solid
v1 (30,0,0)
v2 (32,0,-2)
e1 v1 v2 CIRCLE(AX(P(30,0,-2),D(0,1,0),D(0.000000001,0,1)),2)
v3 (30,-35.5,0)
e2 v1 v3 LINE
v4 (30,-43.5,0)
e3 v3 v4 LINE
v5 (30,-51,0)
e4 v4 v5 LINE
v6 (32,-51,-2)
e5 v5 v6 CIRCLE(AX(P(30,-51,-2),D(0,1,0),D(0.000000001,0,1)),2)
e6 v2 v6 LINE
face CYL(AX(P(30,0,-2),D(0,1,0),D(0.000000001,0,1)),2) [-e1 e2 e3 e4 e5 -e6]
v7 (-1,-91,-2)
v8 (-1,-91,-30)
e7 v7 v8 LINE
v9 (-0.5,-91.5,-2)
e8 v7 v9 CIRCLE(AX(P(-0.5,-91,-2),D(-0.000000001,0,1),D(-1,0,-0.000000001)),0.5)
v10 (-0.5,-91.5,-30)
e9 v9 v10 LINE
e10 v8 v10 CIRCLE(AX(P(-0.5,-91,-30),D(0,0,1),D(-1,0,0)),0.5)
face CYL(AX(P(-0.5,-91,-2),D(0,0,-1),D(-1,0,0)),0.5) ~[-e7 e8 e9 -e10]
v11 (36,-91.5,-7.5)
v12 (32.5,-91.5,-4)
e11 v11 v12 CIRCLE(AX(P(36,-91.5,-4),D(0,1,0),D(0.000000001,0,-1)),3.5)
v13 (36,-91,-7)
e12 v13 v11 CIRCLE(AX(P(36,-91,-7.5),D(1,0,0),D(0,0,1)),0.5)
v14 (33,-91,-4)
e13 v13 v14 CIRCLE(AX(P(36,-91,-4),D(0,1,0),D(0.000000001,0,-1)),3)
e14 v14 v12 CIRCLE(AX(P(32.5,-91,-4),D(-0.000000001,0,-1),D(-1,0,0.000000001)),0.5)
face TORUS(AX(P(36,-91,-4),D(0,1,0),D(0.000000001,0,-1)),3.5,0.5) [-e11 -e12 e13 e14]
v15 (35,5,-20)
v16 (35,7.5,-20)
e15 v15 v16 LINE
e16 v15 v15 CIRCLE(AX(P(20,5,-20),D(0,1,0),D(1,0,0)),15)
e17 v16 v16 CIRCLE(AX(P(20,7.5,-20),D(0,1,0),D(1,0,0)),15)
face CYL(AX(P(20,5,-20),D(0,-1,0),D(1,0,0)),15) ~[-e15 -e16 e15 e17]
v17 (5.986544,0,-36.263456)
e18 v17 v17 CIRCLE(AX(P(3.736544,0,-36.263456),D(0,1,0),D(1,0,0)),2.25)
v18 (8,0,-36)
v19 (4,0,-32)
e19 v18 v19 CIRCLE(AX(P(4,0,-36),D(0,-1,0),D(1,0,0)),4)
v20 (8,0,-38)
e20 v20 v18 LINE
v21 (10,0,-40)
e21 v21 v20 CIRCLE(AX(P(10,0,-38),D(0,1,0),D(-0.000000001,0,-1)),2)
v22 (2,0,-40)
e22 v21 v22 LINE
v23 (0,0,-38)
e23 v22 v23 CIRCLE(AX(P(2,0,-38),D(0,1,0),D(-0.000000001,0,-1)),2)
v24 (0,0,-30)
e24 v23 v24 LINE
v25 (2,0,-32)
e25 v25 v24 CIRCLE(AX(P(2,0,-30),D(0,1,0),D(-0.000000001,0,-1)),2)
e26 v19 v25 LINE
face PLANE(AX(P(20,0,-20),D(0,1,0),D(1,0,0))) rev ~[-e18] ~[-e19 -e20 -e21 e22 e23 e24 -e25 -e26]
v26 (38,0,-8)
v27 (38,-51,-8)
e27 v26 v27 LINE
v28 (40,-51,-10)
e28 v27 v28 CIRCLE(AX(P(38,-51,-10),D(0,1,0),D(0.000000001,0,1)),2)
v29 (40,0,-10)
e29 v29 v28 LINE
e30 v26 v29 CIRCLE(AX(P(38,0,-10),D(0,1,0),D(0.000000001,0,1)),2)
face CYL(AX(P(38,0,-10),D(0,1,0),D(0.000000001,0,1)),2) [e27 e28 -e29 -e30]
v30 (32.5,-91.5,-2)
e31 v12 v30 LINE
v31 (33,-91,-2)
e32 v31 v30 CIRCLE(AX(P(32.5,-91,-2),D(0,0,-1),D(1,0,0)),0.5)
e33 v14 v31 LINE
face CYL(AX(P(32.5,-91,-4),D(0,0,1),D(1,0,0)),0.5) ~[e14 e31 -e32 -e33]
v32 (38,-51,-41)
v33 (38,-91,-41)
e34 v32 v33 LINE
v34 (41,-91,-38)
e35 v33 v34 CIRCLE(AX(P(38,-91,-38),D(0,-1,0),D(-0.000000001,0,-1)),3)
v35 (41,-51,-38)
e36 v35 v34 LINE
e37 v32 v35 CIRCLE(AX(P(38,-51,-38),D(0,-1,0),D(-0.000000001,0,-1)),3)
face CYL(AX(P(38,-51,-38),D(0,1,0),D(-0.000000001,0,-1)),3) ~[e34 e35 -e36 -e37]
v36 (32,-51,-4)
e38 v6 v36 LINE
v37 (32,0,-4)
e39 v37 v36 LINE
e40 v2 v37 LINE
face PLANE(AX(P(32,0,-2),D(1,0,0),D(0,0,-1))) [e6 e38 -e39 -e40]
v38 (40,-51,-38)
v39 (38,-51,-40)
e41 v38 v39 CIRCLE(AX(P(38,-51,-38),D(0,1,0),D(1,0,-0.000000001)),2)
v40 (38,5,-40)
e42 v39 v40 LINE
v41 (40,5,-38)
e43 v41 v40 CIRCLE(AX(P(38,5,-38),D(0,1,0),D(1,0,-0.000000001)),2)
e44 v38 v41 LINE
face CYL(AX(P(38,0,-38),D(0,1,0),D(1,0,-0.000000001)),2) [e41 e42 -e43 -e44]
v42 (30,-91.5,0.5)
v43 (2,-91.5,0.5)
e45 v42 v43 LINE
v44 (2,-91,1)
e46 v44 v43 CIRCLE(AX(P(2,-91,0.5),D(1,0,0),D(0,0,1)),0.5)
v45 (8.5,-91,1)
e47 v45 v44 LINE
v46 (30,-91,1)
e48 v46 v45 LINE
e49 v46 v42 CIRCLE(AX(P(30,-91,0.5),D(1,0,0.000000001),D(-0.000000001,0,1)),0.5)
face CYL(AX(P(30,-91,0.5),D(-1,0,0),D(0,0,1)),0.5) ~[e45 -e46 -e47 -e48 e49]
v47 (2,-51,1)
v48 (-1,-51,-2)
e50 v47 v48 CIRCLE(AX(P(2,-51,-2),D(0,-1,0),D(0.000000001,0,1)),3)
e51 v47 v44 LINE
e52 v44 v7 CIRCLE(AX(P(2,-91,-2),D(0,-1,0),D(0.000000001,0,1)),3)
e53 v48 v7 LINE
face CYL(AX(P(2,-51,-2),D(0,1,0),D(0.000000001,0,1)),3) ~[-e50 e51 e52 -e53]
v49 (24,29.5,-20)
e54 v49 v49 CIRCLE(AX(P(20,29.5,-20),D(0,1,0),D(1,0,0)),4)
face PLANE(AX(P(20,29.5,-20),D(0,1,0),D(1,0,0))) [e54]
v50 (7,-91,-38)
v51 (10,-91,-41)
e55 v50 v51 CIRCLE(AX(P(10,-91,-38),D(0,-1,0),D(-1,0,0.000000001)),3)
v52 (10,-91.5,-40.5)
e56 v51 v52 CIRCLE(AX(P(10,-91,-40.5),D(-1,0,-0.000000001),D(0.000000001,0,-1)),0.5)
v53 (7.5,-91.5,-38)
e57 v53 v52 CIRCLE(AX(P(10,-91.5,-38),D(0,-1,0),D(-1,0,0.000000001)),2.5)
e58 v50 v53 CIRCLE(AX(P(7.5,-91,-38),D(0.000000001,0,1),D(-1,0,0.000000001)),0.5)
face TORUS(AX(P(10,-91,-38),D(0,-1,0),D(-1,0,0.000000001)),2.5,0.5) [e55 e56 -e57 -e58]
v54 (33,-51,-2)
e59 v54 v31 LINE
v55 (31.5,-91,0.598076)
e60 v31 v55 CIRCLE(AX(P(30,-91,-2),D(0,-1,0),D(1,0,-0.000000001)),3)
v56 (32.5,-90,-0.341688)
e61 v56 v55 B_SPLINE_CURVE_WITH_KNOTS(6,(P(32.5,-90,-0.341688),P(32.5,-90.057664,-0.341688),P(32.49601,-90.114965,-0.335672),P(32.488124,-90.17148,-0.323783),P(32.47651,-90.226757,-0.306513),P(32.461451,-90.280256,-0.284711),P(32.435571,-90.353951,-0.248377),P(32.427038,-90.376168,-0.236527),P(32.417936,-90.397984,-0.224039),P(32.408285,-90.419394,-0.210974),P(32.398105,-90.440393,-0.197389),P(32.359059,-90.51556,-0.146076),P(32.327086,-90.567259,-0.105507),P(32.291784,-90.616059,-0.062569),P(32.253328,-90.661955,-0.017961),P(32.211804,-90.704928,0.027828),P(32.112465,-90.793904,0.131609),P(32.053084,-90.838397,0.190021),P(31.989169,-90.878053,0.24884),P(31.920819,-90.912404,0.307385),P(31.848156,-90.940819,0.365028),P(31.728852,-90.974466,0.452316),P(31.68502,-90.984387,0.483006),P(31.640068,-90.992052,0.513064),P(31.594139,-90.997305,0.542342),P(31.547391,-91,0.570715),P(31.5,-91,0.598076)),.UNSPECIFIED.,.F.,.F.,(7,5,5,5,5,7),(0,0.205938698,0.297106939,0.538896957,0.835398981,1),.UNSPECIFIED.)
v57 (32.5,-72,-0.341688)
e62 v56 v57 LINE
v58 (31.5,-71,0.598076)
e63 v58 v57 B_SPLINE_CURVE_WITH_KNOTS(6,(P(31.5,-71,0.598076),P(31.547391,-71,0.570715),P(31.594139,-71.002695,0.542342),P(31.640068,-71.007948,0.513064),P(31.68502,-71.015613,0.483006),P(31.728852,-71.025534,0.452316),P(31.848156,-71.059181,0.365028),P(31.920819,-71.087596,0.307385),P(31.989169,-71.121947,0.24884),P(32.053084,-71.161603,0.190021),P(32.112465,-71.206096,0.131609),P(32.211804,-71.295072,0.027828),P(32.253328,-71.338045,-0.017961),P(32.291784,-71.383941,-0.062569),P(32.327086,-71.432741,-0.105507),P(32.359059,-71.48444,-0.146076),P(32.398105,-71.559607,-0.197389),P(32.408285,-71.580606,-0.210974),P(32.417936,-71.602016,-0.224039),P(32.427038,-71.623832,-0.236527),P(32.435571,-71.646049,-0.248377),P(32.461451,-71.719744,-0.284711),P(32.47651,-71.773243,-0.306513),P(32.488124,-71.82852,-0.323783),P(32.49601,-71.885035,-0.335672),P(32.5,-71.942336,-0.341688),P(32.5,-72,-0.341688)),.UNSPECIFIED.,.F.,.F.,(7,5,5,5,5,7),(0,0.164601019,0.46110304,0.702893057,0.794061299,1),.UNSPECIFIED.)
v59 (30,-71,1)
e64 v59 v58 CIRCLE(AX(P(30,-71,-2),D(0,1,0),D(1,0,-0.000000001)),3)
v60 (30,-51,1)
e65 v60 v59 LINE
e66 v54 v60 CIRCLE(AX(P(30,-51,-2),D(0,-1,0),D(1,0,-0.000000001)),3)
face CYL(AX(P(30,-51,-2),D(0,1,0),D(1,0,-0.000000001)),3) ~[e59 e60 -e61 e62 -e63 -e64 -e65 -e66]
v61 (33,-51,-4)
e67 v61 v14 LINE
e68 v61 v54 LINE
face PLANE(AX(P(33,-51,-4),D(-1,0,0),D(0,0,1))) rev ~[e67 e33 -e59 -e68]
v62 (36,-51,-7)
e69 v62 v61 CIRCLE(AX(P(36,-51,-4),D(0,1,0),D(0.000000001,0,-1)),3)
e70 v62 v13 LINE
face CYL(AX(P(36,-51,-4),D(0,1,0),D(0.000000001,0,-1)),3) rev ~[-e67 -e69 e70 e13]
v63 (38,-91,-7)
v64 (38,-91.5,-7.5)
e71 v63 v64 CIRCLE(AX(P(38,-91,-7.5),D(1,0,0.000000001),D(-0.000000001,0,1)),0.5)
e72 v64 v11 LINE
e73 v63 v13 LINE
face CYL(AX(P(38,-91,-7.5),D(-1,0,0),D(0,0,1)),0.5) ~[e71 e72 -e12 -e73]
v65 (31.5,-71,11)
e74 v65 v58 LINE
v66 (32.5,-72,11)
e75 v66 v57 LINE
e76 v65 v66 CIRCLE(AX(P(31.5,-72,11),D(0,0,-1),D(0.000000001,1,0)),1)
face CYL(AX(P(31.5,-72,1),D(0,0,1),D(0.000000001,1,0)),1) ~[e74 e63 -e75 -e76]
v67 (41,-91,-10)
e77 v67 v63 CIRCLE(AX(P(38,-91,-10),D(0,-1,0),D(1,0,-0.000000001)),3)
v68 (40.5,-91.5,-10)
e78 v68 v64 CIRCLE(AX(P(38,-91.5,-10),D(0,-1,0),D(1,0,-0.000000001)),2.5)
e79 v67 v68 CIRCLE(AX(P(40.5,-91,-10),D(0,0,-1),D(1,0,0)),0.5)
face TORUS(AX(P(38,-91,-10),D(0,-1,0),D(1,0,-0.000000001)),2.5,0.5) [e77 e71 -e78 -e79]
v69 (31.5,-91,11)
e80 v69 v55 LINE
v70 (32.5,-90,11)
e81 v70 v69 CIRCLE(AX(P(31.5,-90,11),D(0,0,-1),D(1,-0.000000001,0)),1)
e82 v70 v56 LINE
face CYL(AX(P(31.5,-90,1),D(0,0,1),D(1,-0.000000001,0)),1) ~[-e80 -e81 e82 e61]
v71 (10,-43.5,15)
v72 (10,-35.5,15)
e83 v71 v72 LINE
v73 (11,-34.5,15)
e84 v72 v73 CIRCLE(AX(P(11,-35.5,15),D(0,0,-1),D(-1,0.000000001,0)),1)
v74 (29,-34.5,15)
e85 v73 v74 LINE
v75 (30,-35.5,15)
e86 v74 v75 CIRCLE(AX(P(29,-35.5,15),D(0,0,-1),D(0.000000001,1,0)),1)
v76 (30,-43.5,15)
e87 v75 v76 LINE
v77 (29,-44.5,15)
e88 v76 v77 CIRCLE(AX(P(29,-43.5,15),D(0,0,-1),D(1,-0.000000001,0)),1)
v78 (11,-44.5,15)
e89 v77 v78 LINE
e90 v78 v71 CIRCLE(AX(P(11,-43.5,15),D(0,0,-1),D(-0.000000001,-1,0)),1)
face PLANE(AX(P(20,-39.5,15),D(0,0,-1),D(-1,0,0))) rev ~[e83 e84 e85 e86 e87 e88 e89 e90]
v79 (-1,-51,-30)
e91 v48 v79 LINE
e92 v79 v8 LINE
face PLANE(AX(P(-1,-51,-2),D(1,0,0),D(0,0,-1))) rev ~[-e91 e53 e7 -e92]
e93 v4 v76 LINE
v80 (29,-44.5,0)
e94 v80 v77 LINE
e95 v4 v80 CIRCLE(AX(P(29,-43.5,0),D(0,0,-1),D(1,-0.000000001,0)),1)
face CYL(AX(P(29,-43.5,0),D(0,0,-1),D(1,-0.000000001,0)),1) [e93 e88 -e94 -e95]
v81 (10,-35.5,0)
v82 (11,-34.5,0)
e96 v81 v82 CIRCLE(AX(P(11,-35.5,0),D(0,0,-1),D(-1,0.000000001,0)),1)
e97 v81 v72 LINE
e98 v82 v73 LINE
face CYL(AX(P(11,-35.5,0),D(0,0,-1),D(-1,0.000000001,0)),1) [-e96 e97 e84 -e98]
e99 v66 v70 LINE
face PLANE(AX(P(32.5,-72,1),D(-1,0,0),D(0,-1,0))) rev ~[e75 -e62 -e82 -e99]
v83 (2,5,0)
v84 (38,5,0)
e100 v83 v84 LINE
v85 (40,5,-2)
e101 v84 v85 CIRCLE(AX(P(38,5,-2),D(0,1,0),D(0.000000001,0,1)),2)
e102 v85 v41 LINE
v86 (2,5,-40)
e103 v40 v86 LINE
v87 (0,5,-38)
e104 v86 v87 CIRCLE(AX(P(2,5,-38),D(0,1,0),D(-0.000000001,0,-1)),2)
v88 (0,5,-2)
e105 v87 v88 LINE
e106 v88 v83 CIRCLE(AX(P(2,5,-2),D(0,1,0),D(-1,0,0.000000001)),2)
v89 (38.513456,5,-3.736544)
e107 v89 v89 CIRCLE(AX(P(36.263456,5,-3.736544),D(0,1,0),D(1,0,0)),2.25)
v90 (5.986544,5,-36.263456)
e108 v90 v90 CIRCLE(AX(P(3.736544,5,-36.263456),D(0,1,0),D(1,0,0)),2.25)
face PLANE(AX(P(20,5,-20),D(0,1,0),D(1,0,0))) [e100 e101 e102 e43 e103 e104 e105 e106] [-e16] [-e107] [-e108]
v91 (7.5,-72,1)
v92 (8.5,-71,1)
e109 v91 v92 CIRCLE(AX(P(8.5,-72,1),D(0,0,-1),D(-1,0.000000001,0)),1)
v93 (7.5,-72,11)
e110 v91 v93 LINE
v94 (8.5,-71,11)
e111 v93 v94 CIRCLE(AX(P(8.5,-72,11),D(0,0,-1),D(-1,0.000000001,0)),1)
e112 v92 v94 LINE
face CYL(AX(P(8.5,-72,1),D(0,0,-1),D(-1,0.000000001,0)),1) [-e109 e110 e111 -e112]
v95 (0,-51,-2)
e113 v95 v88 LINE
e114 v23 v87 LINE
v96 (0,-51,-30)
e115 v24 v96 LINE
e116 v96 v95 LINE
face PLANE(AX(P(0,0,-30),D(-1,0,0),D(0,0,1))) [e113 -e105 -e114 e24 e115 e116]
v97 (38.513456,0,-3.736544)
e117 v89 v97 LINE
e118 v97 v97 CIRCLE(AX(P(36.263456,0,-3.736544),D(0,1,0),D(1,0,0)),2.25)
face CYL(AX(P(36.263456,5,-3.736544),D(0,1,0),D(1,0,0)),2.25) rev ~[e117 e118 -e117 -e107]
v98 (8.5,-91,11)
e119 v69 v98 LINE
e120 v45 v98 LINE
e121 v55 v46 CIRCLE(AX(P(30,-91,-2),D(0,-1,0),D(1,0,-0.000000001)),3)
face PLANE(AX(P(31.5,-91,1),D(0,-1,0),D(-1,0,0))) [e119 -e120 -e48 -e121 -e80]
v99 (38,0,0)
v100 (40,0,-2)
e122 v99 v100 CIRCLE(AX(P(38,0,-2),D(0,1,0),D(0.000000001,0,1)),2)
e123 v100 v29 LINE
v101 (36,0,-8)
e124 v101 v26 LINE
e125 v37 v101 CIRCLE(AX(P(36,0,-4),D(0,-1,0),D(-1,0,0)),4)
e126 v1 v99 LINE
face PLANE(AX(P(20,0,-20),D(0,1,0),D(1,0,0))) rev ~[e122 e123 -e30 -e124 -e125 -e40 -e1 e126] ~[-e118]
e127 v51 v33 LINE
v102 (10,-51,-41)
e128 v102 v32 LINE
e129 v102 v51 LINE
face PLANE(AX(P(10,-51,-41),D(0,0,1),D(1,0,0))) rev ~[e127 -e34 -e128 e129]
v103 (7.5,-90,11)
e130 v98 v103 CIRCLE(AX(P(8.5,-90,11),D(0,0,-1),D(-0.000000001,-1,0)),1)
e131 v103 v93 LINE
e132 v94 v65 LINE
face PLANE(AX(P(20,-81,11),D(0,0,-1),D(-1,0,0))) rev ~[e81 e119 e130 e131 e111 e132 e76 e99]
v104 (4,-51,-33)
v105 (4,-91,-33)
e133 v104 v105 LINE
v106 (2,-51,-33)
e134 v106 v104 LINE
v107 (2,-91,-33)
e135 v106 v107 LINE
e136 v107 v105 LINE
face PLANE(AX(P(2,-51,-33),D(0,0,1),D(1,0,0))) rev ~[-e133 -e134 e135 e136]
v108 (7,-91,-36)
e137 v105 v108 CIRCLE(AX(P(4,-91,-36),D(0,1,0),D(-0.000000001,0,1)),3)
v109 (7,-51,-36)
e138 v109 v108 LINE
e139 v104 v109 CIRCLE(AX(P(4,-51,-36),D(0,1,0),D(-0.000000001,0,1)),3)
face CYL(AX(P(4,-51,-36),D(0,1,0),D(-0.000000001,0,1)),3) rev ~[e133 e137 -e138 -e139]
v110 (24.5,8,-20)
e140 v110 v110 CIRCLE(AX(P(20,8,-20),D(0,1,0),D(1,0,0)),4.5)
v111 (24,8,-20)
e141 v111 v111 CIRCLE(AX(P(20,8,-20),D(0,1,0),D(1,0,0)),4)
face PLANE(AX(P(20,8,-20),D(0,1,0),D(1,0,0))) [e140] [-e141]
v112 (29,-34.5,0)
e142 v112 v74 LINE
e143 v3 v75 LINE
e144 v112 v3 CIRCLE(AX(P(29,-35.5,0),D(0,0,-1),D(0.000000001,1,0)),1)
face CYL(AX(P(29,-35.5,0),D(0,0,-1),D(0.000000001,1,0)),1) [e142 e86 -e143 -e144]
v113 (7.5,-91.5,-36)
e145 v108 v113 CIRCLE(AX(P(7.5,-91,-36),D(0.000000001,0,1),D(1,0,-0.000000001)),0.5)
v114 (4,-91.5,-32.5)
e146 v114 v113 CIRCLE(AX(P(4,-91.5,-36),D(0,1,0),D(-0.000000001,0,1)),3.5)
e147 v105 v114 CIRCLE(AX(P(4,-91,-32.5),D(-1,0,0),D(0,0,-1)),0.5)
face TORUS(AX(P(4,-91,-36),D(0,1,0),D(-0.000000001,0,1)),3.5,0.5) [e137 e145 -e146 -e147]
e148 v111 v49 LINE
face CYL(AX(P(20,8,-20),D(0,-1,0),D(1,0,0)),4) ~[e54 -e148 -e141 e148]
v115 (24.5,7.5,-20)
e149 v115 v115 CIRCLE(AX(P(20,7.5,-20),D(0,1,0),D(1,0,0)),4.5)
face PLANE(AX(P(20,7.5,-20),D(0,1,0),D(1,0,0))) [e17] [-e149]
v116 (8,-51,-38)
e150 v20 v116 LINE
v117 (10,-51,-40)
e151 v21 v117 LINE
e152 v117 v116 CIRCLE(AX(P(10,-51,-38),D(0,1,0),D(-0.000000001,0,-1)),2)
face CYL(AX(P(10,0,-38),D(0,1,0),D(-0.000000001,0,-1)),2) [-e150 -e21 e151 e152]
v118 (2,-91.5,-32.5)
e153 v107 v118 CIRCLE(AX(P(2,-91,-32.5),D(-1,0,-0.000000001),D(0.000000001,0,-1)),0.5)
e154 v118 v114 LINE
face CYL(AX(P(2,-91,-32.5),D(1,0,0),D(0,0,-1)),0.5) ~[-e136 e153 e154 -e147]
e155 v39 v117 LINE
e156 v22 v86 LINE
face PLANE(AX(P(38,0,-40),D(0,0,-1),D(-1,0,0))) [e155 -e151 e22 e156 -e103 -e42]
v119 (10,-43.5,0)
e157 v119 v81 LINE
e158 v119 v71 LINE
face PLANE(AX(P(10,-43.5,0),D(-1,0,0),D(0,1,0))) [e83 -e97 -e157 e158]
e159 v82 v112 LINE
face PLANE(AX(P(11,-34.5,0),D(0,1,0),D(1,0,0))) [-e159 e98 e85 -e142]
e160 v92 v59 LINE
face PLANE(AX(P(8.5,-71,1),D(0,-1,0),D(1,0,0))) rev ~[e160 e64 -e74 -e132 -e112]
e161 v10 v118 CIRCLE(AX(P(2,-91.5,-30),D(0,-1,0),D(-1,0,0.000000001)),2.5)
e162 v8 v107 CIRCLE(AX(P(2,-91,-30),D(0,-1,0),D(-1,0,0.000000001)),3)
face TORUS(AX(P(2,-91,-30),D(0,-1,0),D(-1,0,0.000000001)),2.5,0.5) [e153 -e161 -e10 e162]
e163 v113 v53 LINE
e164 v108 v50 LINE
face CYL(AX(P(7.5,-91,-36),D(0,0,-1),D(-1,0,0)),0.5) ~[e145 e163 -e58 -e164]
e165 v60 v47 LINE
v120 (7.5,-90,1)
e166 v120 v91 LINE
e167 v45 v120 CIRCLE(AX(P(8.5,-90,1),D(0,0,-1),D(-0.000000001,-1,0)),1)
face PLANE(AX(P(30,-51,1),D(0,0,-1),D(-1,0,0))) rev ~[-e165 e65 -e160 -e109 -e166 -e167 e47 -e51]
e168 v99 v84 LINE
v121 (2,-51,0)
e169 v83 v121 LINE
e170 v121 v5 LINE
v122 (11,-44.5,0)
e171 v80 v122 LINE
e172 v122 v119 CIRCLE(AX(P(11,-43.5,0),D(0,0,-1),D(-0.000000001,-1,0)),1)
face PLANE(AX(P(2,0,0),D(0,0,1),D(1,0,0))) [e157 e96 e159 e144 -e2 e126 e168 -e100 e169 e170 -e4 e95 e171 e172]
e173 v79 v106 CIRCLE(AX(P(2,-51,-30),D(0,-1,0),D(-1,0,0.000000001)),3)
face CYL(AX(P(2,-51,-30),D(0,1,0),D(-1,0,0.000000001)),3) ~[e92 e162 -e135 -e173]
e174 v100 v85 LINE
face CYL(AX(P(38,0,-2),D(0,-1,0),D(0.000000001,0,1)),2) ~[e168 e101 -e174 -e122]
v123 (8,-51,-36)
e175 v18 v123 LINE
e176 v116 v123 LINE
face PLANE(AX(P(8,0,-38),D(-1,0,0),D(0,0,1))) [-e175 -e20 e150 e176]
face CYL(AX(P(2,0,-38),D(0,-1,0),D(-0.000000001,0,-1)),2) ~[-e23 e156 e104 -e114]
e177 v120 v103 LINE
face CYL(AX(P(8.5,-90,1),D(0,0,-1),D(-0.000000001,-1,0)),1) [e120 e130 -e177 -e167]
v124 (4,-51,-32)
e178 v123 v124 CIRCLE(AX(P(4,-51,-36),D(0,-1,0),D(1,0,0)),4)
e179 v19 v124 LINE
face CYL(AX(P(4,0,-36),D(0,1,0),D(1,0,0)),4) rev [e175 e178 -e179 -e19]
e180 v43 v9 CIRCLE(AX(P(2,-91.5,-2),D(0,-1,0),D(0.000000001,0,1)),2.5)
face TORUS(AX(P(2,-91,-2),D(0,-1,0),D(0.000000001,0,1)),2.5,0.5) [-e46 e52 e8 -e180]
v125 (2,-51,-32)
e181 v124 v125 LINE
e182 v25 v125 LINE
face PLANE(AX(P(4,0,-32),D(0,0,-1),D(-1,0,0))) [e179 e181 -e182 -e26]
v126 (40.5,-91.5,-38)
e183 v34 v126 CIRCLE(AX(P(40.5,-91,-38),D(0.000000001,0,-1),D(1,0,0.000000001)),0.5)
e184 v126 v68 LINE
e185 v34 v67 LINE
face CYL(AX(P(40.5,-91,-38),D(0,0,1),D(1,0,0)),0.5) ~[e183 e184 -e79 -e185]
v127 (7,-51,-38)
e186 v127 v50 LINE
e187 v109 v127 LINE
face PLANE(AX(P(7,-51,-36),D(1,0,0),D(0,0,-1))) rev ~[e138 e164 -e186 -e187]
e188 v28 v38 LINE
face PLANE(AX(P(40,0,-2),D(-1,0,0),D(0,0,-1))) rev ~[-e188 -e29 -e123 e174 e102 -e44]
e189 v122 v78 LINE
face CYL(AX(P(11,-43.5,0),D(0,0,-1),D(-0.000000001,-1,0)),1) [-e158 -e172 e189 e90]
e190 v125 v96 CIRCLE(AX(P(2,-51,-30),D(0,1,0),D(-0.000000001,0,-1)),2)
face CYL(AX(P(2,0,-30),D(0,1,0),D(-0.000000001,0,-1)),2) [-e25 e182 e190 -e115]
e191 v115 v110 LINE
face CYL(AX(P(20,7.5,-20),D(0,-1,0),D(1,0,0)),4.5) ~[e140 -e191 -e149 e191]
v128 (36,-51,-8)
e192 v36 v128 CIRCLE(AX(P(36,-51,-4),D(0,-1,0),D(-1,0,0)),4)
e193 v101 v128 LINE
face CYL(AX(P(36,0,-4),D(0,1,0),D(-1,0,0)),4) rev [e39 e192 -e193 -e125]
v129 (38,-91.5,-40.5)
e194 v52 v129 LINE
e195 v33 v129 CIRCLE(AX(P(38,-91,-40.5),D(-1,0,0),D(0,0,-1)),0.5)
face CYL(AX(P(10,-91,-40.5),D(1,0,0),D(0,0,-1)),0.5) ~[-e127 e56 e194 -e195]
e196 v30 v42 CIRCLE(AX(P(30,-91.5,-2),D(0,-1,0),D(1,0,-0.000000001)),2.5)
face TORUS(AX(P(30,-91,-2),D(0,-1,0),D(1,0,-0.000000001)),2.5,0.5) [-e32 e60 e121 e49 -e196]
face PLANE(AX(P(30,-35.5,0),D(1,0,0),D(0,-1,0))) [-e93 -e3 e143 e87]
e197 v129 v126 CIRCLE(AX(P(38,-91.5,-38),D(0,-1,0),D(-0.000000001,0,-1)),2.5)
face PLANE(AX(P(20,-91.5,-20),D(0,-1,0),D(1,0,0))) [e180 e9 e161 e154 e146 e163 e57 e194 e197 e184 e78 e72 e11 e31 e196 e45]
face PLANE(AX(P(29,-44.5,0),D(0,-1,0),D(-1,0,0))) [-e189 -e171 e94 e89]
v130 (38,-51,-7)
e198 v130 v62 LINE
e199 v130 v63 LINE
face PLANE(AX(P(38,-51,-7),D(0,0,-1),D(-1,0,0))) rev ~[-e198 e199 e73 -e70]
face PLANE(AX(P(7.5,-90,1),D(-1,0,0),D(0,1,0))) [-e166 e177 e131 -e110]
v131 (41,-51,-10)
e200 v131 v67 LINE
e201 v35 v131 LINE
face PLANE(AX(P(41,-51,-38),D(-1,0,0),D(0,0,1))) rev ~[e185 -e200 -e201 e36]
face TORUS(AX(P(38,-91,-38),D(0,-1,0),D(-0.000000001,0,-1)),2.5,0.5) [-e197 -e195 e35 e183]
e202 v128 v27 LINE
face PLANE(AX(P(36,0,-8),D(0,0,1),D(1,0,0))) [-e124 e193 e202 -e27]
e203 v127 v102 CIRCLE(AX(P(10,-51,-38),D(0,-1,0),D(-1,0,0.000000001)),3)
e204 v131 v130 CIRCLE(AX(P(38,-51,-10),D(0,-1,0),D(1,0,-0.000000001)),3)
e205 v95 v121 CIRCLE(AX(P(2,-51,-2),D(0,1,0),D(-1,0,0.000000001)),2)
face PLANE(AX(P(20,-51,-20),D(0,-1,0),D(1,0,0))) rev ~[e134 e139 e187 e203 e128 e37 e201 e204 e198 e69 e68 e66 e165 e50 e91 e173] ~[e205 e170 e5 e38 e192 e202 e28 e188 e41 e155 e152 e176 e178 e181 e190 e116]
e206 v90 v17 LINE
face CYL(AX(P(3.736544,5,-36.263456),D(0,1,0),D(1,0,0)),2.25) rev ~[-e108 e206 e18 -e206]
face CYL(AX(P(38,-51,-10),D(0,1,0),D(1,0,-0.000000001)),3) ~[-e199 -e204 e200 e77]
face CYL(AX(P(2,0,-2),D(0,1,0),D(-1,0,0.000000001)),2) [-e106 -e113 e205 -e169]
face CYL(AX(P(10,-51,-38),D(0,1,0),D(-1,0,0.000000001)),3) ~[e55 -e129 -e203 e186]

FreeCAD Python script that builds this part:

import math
import FreeCAD as App
import Part
import Sketcher
from FreeCAD import Vector
Q = App.Units.Quantity


def edges_at(feature, points):
    """Names of the edges that pass closest to the given points."""
    edges = feature.Shape.Edges
    near = lambda p: min(range(len(edges)), key=lambda i: edges[i].distToShape(Part.Vertex(*p))[0])
    return sorted({f"Edge{near(p) + 1}" for p in points})

doc = App.newDocument("Part")
params = doc.addObject("Spreadsheet::Sheet", "Params")
for row, (alias, value) in enumerate([
    ("sketch1_radius", "2 mm"),
    ("sketch1_width", "36 mm"),
    ("pad1_length", "5 mm"),
    ("sketch2_diameter", "30 mm"),
    ("pad2_length", "2.5 mm"),
    ("sketch3_diameter", "4.5 mm"),
    ("pocket1_length", "5 mm"),
    ("sketch4_radius", "2 mm"),
    ("sketch4_radius2", "4 mm"),
    ("sketch4_width", "28 mm"),
    ("sketch4_width2", "2 mm"),
    ("pad3_length", "51 mm"),
    ("sketch5_radius", "3 mm"),
    ("sketch5_width", "28 mm"),
    ("sketch5_width2", "2 mm"),
    ("pad4_length", "40.5 mm"),
    ("sketch6_diameter", "9 mm"),
    ("pad5_length", "0.5 mm"),
    ("sketch7_diameter", "8 mm"),
    ("pad6_length", "21.5 mm"),
    ("fillet_radius", "0.5 mm"),
    ("sketch8_radius", "1 mm"),
    ("sketch8_width", "18 mm"),
    ("sketch8_height", "8 mm"),
    ("pad7_length", "15 mm"),
    ("sketch9_radius", "1 mm"),
    ("sketch9_width", "23 mm"),
    ("sketch9_height", "18 mm"),
    ("pad8_length", "10 mm"),
    ("sketch10_radius", "1 mm"),
    ("sketch10_width", "23 mm"),
    ("sketch10_height", "18 mm"),
    ("pad9_length", "1.341688 mm"),
], start=1):
    params.set(f"A{row}", alias)
    params.set(f"B{row}", "=" + value)
    params.setAlias(f"B{row}", alias)

body = doc.addObject("PartDesign::Body", "Body")

sketch1 = body.newObject("Sketcher::SketchObject", "Sketch")
sketch1.AttachmentSupport = (doc.getObject("XZ_Plane"), [""])
sketch1.MapMode = "FlatFace"
sketch1.addGeometry([
    Part.LineSegment(Vector(2, 0, 0), Vector(38, 0, 0)),
    Part.ArcOfCircle(Part.Circle(Vector(38, -2, 0), Vector(0, 0, 1), 2), math.radians(0), math.radians(90)),
    Part.LineSegment(Vector(40, -2, 0), Vector(40, -38, 0)),
    Part.ArcOfCircle(Part.Circle(Vector(38, -38, 0), Vector(0, 0, 1), 2), math.radians(-90), math.radians(0)),
    Part.LineSegment(Vector(38, -40, 0), Vector(2, -40, 0)),
    Part.ArcOfCircle(Part.Circle(Vector(2, -38, 0), Vector(0, 0, 1), 2), math.radians(-180), math.radians(-90)),
    Part.LineSegment(Vector(0, -38, 0), Vector(0, -2, 0)),
    Part.ArcOfCircle(Part.Circle(Vector(2, -2, 0), Vector(0, 0, 1), 2), math.radians(90), math.radians(180)),
], False)
sketch1.addConstraint([
    Sketcher.Constraint("Tangent", 0, 2, 1, 2),
    Sketcher.Constraint("Tangent", 1, 1, 2, 1),
    Sketcher.Constraint("Tangent", 2, 2, 3, 2),
    Sketcher.Constraint("Tangent", 3, 1, 4, 1),
    Sketcher.Constraint("Tangent", 4, 2, 5, 2),
    Sketcher.Constraint("Tangent", 5, 1, 6, 1),
    Sketcher.Constraint("Tangent", 6, 2, 7, 2),
    Sketcher.Constraint("Tangent", 7, 1, 0, 1),
    Sketcher.Constraint("Horizontal", 0),
    Sketcher.Constraint("Vertical", 2),
    Sketcher.Constraint("Horizontal", 4),
    Sketcher.Constraint("Vertical", 6),
    Sketcher.Constraint("Equal", 1, 3),
    Sketcher.Constraint("Equal", 3, 5),
    Sketcher.Constraint("Equal", 5, 7),
    Sketcher.Constraint("PointOnObject", 0, 2, -1),
    Sketcher.Constraint("PointOnObject", 5, 1, -2),
    Sketcher.Constraint("Equal", 4, 2),
    Sketcher.Constraint("Radius", 1, Q("2 mm")),
    Sketcher.Constraint("DistanceX", 0, 1, 0, 2, Q("36 mm")),
])
sketch1.setExpression("Constraints[18]", "Params.sketch1_radius")
sketch1.setExpression("Constraints[19]", "Params.sketch1_width")
pad1 = body.newObject("PartDesign::Pad", "Pad")
pad1.Profile = sketch1
pad1.setExpression("Length", "Params.pad1_length")
pad1.Reversed = True

sketch2 = body.newObject("Sketcher::SketchObject", "Sketch001")
sketch2.AttachmentSupport = (doc.getObject("XZ_Plane"), [""])
sketch2.MapMode = "FlatFace"
sketch2.AttachmentOffset = App.Placement(Vector(0, 0, -5), App.Rotation())
sketch2.addGeometry(Part.Circle(Vector(20, -20, 0), Vector(0, 0, 1), 15), False)
sketch2.addConstraint([
    Sketcher.Constraint("Diameter", 0, Q("30 mm")),
    Sketcher.Constraint("DistanceX", -1, 1, 0, 3, Q("20 mm")),
    Sketcher.Constraint("DistanceY", 0, 3, -1, 1, Q("20 mm")),
])
sketch2.setExpression("Constraints[0]", "Params.sketch2_diameter")
pad2 = body.newObject("PartDesign::Pad", "Pad001")
pad2.Profile = sketch2
pad2.setExpression("Length", "Params.pad2_length")
pad2.Reversed = True

sketch3 = body.newObject("Sketcher::SketchObject", "Sketch002")
sketch3.AttachmentSupport = (doc.getObject("XZ_Plane"), [""])
sketch3.MapMode = "FlatFace"
sketch3.AttachmentOffset = App.Placement(Vector(0, 0, -5), App.Rotation())
sketch3.addGeometry([
    Part.Circle(Vector(3.7, -36.3, 0), Vector(0, 0, 1), 2.2),
    Part.Circle(Vector(36.3, -3.7, 0), Vector(0, 0, 1), 2.2),
], False)
sketch3.addConstraint([
    Sketcher.Constraint("Equal", 0, 1),
    Sketcher.Constraint("Diameter", 0, Q("4.5 mm")),
    Sketcher.Constraint("DistanceX", 0, 3, 1, 3, Q("32.526912 mm")),
    Sketcher.Constraint("DistanceY", 0, 3, 1, 3, Q("32.526912 mm")),
    Sketcher.Constraint("DistanceX", -1, 1, 0, 3, Q("3.736544 mm")),
    Sketcher.Constraint("DistanceY", 0, 3, -1, 1, Q("36.263456 mm")),
])
sketch3.setExpression("Constraints[1]", "Params.sketch3_diameter")
pocket1 = body.newObject("PartDesign::Pocket", "Pocket")
pocket1.Profile = sketch3
pocket1.setExpression("Length", "Params.pocket1_length")
pocket1.Reversed = True

sketch4 = body.newObject("Sketcher::SketchObject", "Sketch003")
sketch4.AttachmentSupport = (doc.getObject("XZ_Plane"), [""])
sketch4.MapMode = "FlatFace"
sketch4.addGeometry([
    Part.LineSegment(Vector(32, -4, 0), Vector(32, -2, 0)),
    Part.ArcOfCircle(Part.Circle(Vector(30, -2, 0), Vector(0, 0, 1), 2), math.radians(0), math.radians(90)),
    Part.LineSegment(Vector(30, 0, 0), Vector(2, 0, 0)),
    Part.ArcOfCircle(Part.Circle(Vector(2, -2, 0), Vector(0, 0, 1), 2), math.radians(90), math.radians(180)),
    Part.LineSegment(Vector(0, -2, 0), Vector(0, -30, 0)),
    Part.ArcOfCircle(Part.Circle(Vector(2, -30, 0), Vector(0, 0, 1), 2), math.radians(-180), math.radians(-90)),
    Part.LineSegment(Vector(2, -32, 0), Vector(4, -32, 0)),
    Part.ArcOfCircle(Part.Circle(Vector(4, -36, 0), Vector(0, 0, 1), 4), math.radians(0), math.radians(90)),
    Part.LineSegment(Vector(8, -36, 0), Vector(8, -38, 0)),
    Part.ArcOfCircle(Part.Circle(Vector(10, -38, 0), Vector(0, 0, 1), 2), math.radians(-180), math.radians(-90)),
    Part.LineSegment(Vector(10, -40, 0), Vector(38, -40, 0)),
    Part.ArcOfCircle(Part.Circle(Vector(38, -38, 0), Vector(0, 0, 1), 2), math.radians(-90), math.radians(0)),
    Part.LineSegment(Vector(40, -38, 0), Vector(40, -10, 0)),
    Part.ArcOfCircle(Part.Circle(Vector(38, -10, 0), Vector(0, 0, 1), 2), math.radians(0), math.radians(90)),
    Part.LineSegment(Vector(38, -8, 0), Vector(36, -8, 0)),
    Part.ArcOfCircle(Part.Circle(Vector(36, -4, 0), Vector(0, 0, 1), 4), math.radians(180), math.radians(270)),
], False)
sketch4.addConstraint([
    Sketcher.Constraint("Tangent", 0, 2, 1, 1),
    Sketcher.Constraint("Tangent", 1, 2, 2, 1),
    Sketcher.Constraint("Tangent", 2, 2, 3, 1),
    Sketcher.Constraint("Tangent", 3, 2, 4, 1),
    Sketcher.Constraint("Tangent", 4, 2, 5, 1),
    Sketcher.Constraint("Tangent", 5, 2, 6, 1),
    Sketcher.Constraint("Tangent", 6, 2, 7, 2),
    Sketcher.Constraint("Tangent", 7, 1, 8, 1),
    Sketcher.Constraint("Tangent", 8, 2, 9, 1),
    Sketcher.Constraint("Tangent", 9, 2, 10, 1),
    Sketcher.Constraint("Tangent", 10, 2, 11, 1),
    Sketcher.Constraint("Tangent", 11, 2, 12, 1),
    Sketcher.Constraint("Tangent", 12, 2, 13, 1),
    Sketcher.Constraint("Tangent", 13, 2, 14, 1),
    Sketcher.Constraint("Tangent", 14, 2, 15, 2),
    Sketcher.Constraint("Tangent", 15, 1, 0, 1),
    Sketcher.Constraint("Vertical", 0),
    Sketcher.Constraint("Horizontal", 2),
    Sketcher.Constraint("Vertical", 4),
    Sketcher.Constraint("Horizontal", 6),
    Sketcher.Constraint("Vertical", 8),
    Sketcher.Constraint("Horizontal", 10),
    Sketcher.Constraint("Vertical", 12),
    Sketcher.Constraint("Horizontal", 14),
    Sketcher.Constraint("Equal", 1, 3),
    Sketcher.Constraint("Equal", 3, 5),
    Sketcher.Constraint("Equal", 5, 9),
    Sketcher.Constraint("Equal", 9, 11),
    Sketcher.Constraint("Equal", 11, 13),
    Sketcher.Constraint("Equal", 7, 15),
    Sketcher.Constraint("PointOnObject", 1, 2, -1),
    Sketcher.Constraint("PointOnObject", 3, 2, -2),
    Sketcher.Constraint("Equal", 2, 10),
    Sketcher.Constraint("Equal", 14, 0),
    Sketcher.Constraint("Equal", 10, 4),
    Sketcher.Constraint("Equal", 0, 8),
    Sketcher.Constraint("Radius", 1, Q("2 mm")),
    Sketcher.Constraint("Radius", 7, Q("4 mm")),
    Sketcher.Constraint("DistanceX", 2, 2, 2, 1, Q("28 mm")),
    Sketcher.Constraint("DistanceX", 6, 1, 6, 2, Q("2 mm")),
])
sketch4.setExpression("Constraints[36]", "Params.sketch4_radius")
sketch4.setExpression("Constraints[37]", "Params.sketch4_radius2")
sketch4.setExpression("Constraints[38]", "Params.sketch4_width")
sketch4.setExpression("Constraints[39]", "Params.sketch4_width2")
pad3 = body.newObject("PartDesign::Pad", "Pad002")
pad3.Profile = sketch4
pad3.setExpression("Length", "Params.pad3_length")

sketch5 = body.newObject("Sketcher::SketchObject", "Sketch004")
sketch5.AttachmentSupport = (doc.getObject("XZ_Plane"), [""])
sketch5.MapMode = "FlatFace"
sketch5.AttachmentOffset = App.Placement(Vector(0, 0, 51), App.Rotation())
sketch5.addGeometry([
    Part.LineSegment(Vector(10, -41, 0), Vector(38, -41, 0)),
    Part.ArcOfCircle(Part.Circle(Vector(38, -38, 0), Vector(0, 0, 1), 3), math.radians(-90), math.radians(0)),
    Part.LineSegment(Vector(41, -38, 0), Vector(41, -10, 0)),
    Part.ArcOfCircle(Part.Circle(Vector(38, -10, 0), Vector(0, 0, 1), 3), math.radians(0), math.radians(90)),
    Part.LineSegment(Vector(38, -7, 0), Vector(36, -7, 0)),
    Part.ArcOfCircle(Part.Circle(Vector(36, -4, 0), Vector(0, 0, 1), 3), math.radians(180), math.radians(270)),
    Part.LineSegment(Vector(33, -4, 0), Vector(33, -2, 0)),
    Part.ArcOfCircle(Part.Circle(Vector(30, -2, 0), Vector(0, 0, 1), 3), math.radians(0), math.radians(90)),
    Part.LineSegment(Vector(30, 1, 0), Vector(2, 1, 0)),
    Part.ArcOfCircle(Part.Circle(Vector(2, -2, 0), Vector(0, 0, 1), 3), math.radians(90), math.radians(180)),
    Part.LineSegment(Vector(-1, -2, 0), Vector(-1, -30, 0)),
    Part.ArcOfCircle(Part.Circle(Vector(2, -30, 0), Vector(0, 0, 1), 3), math.radians(180), math.radians(270)),
    Part.LineSegment(Vector(2, -33, 0), Vector(4, -33, 0)),
    Part.ArcOfCircle(Part.Circle(Vector(4, -36, 0), Vector(0, 0, 1), 3), math.radians(0), math.radians(90)),
    Part.LineSegment(Vector(7, -36, 0), Vector(7, -38, 0)),
    Part.ArcOfCircle(Part.Circle(Vector(10, -38, 0), Vector(0, 0, 1), 3), math.radians(180), math.radians(270)),
], False)
sketch5.addConstraint([
    Sketcher.Constraint("Tangent", 0, 2, 1, 1),
    Sketcher.Constraint("Tangent", 1, 2, 2, 1),
    Sketcher.Constraint("Tangent", 2, 2, 3, 1),
    Sketcher.Constraint("Tangent", 3, 2, 4, 1),
    Sketcher.Constraint("Tangent", 4, 2, 5, 2),
    Sketcher.Constraint("Tangent", 5, 1, 6, 1),
    Sketcher.Constraint("Tangent", 6, 2, 7, 1),
    Sketcher.Constraint("Tangent", 7, 2, 8, 1),
    Sketcher.Constraint("Tangent", 8, 2, 9, 1),
    Sketcher.Constraint("Tangent", 9, 2, 10, 1),
    Sketcher.Constraint("Tangent", 10, 2, 11, 1),
    Sketcher.Constraint("Tangent", 11, 2, 12, 1),
    Sketcher.Constraint("Tangent", 12, 2, 13, 2),
    Sketcher.Constraint("Tangent", 13, 1, 14, 1),
    Sketcher.Constraint("Tangent", 14, 2, 15, 1),
    Sketcher.Constraint("Tangent", 15, 2, 0, 1),
    Sketcher.Constraint("Horizontal", 0),
    Sketcher.Constraint("Vertical", 2),
    Sketcher.Constraint("Horizontal", 4),
    Sketcher.Constraint("Vertical", 6),
    Sketcher.Constraint("Horizontal", 8),
    Sketcher.Constraint("Vertical", 10),
    Sketcher.Constraint("Horizontal", 12),
    Sketcher.Constraint("Vertical", 14),
    Sketcher.Constraint("Equal", 1, 3),
    Sketcher.Constraint("Equal", 3, 5),
    Sketcher.Constraint("Equal", 5, 7),
    Sketcher.Constraint("Equal", 7, 9),
    Sketcher.Constraint("Equal", 9, 11),
    Sketcher.Constraint("Equal", 11, 13),
    Sketcher.Constraint("Equal", 13, 15),
    Sketcher.Constraint("Equal", 0, 8),
    Sketcher.Constraint("Equal", 8, 2),
    Sketcher.Constraint("Equal", 12, 6),
    Sketcher.Constraint("Equal", 2, 10),
    Sketcher.Constraint("Radius", 1, Q("3 mm")),
    Sketcher.Constraint("DistanceX", 0, 1, 0, 2, Q("28 mm")),
    Sketcher.Constraint("DistanceX", 4, 2, 4, 1, Q("2 mm")),
    Sketcher.Constraint("DistanceX", -1, 1, 1, 3, Q("38 mm")),
    Sketcher.Constraint("DistanceY", 1, 3, -1, 1, Q("38 mm")),
])
sketch5.setExpression("Constraints[35]", "Params.sketch5_radius")
sketch5.setExpression("Constraints[36]", "Params.sketch5_width")
sketch5.setExpression("Constraints[37]", "Params.sketch5_width2")
pad4 = body.newObject("PartDesign::Pad", "Pad003")
pad4.Profile = sketch5
pad4.setExpression("Length", "Params.pad4_length")

sketch6 = body.newObject("Sketcher::SketchObject", "Sketch005")
sketch6.AttachmentSupport = (doc.getObject("XZ_Plane"), [""])
sketch6.MapMode = "FlatFace"
sketch6.AttachmentOffset = App.Placement(Vector(0, 0, -7.5), App.Rotation())
sketch6.addGeometry(Part.Circle(Vector(20, -20, 0), Vector(0, 0, 1), 4.5), False)
sketch6.addConstraint([
    Sketcher.Constraint("Diameter", 0, Q("9 mm")),
    Sketcher.Constraint("DistanceX", -1, 1, 0, 3, Q("20 mm")),
    Sketcher.Constraint("DistanceY", 0, 3, -1, 1, Q("20 mm")),
])
sketch6.setExpression("Constraints[0]", "Params.sketch6_diameter")
pad5 = body.newObject("PartDesign::Pad", "Pad004")
pad5.Profile = sketch6
pad5.setExpression("Length", "Params.pad5_length")
pad5.Reversed = True

sketch7 = body.newObject("Sketcher::SketchObject", "Sketch006")
sketch7.AttachmentSupport = (doc.getObject("XZ_Plane"), [""])
sketch7.MapMode = "FlatFace"
sketch7.AttachmentOffset = App.Placement(Vector(0, 0, -8), App.Rotation())
sketch7.addGeometry(Part.Circle(Vector(20, -20, 0), Vector(0, 0, 1), 4), False)
sketch7.addConstraint([
    Sketcher.Constraint("Diameter", 0, Q("8 mm")),
    Sketcher.Constraint("DistanceX", -1, 1, 0, 3, Q("20 mm")),
    Sketcher.Constraint("DistanceY", 0, 3, -1, 1, Q("20 mm")),
])
sketch7.setExpression("Constraints[0]", "Params.sketch7_diameter")
pad6 = body.newObject("PartDesign::Pad", "Pad005")
pad6.Profile = sketch7
pad6.setExpression("Length", "Params.pad6_length")
pad6.Reversed = True
doc.recompute()

fillet = body.newObject("PartDesign::Fillet", "Fillet")
fillet.Base = (pad6, edges_at(pad6, [
    (7.879, -91.5, -40.121),
    (24, -91.5, -41),
    (40.121, -91.5, -40.121),
    (41, -91.5, -24),
    (40.121, -91.5, -7.879),
    (37, -91.5, -7),
    (33.879, -91.5, -6.121),
    (33, -91.5, -3),
    (32.121, -91.5, 0.121),
    (16, -91.5, 1),
    (-0.121, -91.5, 0.121),
    (-1, -91.5, -16),
    (-0.121, -91.5, -32.121),
    (3, -91.5, -33),
    (6.121, -91.5, -33.879),
    (7, -91.5, -37),
]))
fillet.setExpression("Radius", "Params.fillet_radius")

sketch8 = body.newObject("Sketcher::SketchObject", "Sketch007")
sketch8.AttachmentSupport = (doc.getObject("XY_Plane"), [""])
sketch8.MapMode = "FlatFace"
sketch8.addGeometry([
    Part.LineSegment(Vector(29, -34.5, 0), Vector(11, -34.5, 0)),
    Part.ArcOfCircle(Part.Circle(Vector(11, -35.5, 0), Vector(0, 0, 1), 1), math.radians(90), math.radians(180)),
    Part.LineSegment(Vector(10, -35.5, 0), Vector(10, -43.5, 0)),
    Part.ArcOfCircle(Part.Circle(Vector(11, -43.5, 0), Vector(0, 0, 1), 1), math.radians(-180), math.radians(-90)),
    Part.LineSegment(Vector(11, -44.5, 0), Vector(29, -44.5, 0)),
    Part.ArcOfCircle(Part.Circle(Vector(29, -43.5, 0), Vector(0, 0, 1), 1), math.radians(-90), math.radians(0)),
    Part.LineSegment(Vector(30, -43.5, 0), Vector(30, -35.5, 0)),
    Part.ArcOfCircle(Part.Circle(Vector(29, -35.5, 0), Vector(0, 0, 1), 1), math.radians(0), math.radians(90)),
], False)
sketch8.addConstraint([
    Sketcher.Constraint("Tangent", 0, 2, 1, 1),
    Sketcher.Constraint("Tangent", 1, 2, 2, 1),
    Sketcher.Constraint("Tangent", 2, 2, 3, 1),
    Sketcher.Constraint("Tangent", 3, 2, 4, 1),
    Sketcher.Constraint("Tangent", 4, 2, 5, 1),
    Sketcher.Constraint("Tangent", 5, 2, 6, 1),
    Sketcher.Constraint("Tangent", 6, 2, 7, 1),
    Sketcher.Constraint("Tangent", 7, 2, 0, 1),
    Sketcher.Constraint("Horizontal", 0),
    Sketcher.Constraint("Vertical", 2),
    Sketcher.Constraint("Horizontal", 4),
    Sketcher.Constraint("Vertical", 6),
    Sketcher.Constraint("Equal", 1, 3),
    Sketcher.Constraint("Equal", 3, 5),
    Sketcher.Constraint("Equal", 5, 7),
    Sketcher.Constraint("Radius", 1, Q("1 mm")),
    Sketcher.Constraint("DistanceX", 0, 2, 0, 1, Q("18 mm")),
    Sketcher.Constraint("DistanceY", 2, 2, 2, 1, Q("8 mm")),
    Sketcher.Constraint("DistanceX", -1, 1, 1, 3, Q("11 mm")),
    Sketcher.Constraint("DistanceY", 1, 3, -1, 1, Q("35.5 mm")),
])
sketch8.setExpression("Constraints[15]", "Params.sketch8_radius")
sketch8.setExpression("Constraints[16]", "Params.sketch8_width")
sketch8.setExpression("Constraints[17]", "Params.sketch8_height")
pad7 = body.newObject("PartDesign::Pad", "Pad006")
pad7.Profile = sketch8
pad7.setExpression("Length", "Params.pad7_length")

sketch9 = body.newObject("Sketcher::SketchObject", "Sketch008")
sketch9.AttachmentSupport = (doc.getObject("XY_Plane"), [""])
sketch9.MapMode = "FlatFace"
sketch9.AttachmentOffset = App.Placement(Vector(0, 0, 1), App.Rotation())
sketch9.addGeometry([
    Part.LineSegment(Vector(31.5, -71, 0), Vector(8.5, -71, 0)),
    Part.ArcOfCircle(Part.Circle(Vector(8.5, -72, 0), Vector(0, 0, 1), 1), math.radians(90), math.radians(180)),
    Part.LineSegment(Vector(7.5, -72, 0), Vector(7.5, -90, 0)),
    Part.ArcOfCircle(Part.Circle(Vector(8.5, -90, 0), Vector(0, 0, 1), 1), math.radians(-180), math.radians(-90)),
    Part.LineSegment(Vector(8.5, -91, 0), Vector(31.5, -91, 0)),
    Part.ArcOfCircle(Part.Circle(Vector(31.5, -90, 0), Vector(0, 0, 1), 1), math.radians(-90), math.radians(0)),
    Part.LineSegment(Vector(32.5, -90, 0), Vector(32.5, -72, 0)),
    Part.ArcOfCircle(Part.Circle(Vector(31.5, -72, 0), Vector(0, 0, 1), 1), math.radians(0), math.radians(90)),
], False)
sketch9.addConstraint([
    Sketcher.Constraint("Tangent", 0, 2, 1, 1),
    Sketcher.Constraint("Tangent", 1, 2, 2, 1),
    Sketcher.Constraint("Tangent", 2, 2, 3, 1),
    Sketcher.Constraint("Tangent", 3, 2, 4, 1),
    Sketcher.Constraint("Tangent", 4, 2, 5, 1),
    Sketcher.Constraint("Tangent", 5, 2, 6, 1),
    Sketcher.Constraint("Tangent", 6, 2, 7, 1),
    Sketcher.Constraint("Tangent", 7, 2, 0, 1),
    Sketcher.Constraint("Horizontal", 0),
    Sketcher.Constraint("Vertical", 2),
    Sketcher.Constraint("Horizontal", 4),
    Sketcher.Constraint("Vertical", 6),
    Sketcher.Constraint("Equal", 1, 3),
    Sketcher.Constraint("Equal", 3, 5),
    Sketcher.Constraint("Equal", 5, 7),
    Sketcher.Constraint("Radius", 1, Q("1 mm")),
    Sketcher.Constraint("DistanceX", 0, 2, 0, 1, Q("23 mm")),
    Sketcher.Constraint("DistanceY", 2, 2, 2, 1, Q("18 mm")),
    Sketcher.Constraint("DistanceY", 1, 3, -1, 1, Q("72 mm")),
    Sketcher.Constraint("DistanceX", -1, 1, 1, 3, Q("8.5 mm")),
])
sketch9.setExpression("Constraints[15]", "Params.sketch9_radius")
sketch9.setExpression("Constraints[16]", "Params.sketch9_width")
sketch9.setExpression("Constraints[17]", "Params.sketch9_height")
pad8 = body.newObject("PartDesign::Pad", "Pad007")
pad8.Profile = sketch9
pad8.setExpression("Length", "Params.pad8_length")

sketch10 = body.newObject("Sketcher::SketchObject", "Sketch009")
sketch10.AttachmentSupport = (doc.getObject("XY_Plane"), [""])
sketch10.MapMode = "FlatFace"
sketch10.AttachmentOffset = App.Placement(Vector(0, 0, 1), App.Rotation())
sketch10.addGeometry([
    Part.LineSegment(Vector(31.5, -71, 0), Vector(8.5, -71, 0)),
    Part.ArcOfCircle(Part.Circle(Vector(8.5, -72, 0), Vector(0, 0, 1), 1), math.radians(90), math.radians(180)),
    Part.LineSegment(Vector(7.5, -72, 0), Vector(7.5, -90, 0)),
    Part.ArcOfCircle(Part.Circle(Vector(8.5, -90, 0), Vector(0, 0, 1), 1), math.radians(-180), math.radians(-90)),
    Part.LineSegment(Vector(8.5, -91, 0), Vector(31.5, -91, 0)),
    Part.ArcOfCircle(Part.Circle(Vector(31.5, -90, 0), Vector(0, 0, 1), 1), math.radians(-90), math.radians(0)),
    Part.LineSegment(Vector(32.5, -90, 0), Vector(32.5, -72, 0)),
    Part.ArcOfCircle(Part.Circle(Vector(31.5, -72, 0), Vector(0, 0, 1), 1), math.radians(0), math.radians(90)),
], False)
sketch10.addConstraint([
    Sketcher.Constraint("Tangent", 0, 2, 1, 1),
    Sketcher.Constraint("Tangent", 1, 2, 2, 1),
    Sketcher.Constraint("Tangent", 2, 2, 3, 1),
    Sketcher.Constraint("Tangent", 3, 2, 4, 1),
    Sketcher.Constraint("Tangent", 4, 2, 5, 1),
    Sketcher.Constraint("Tangent", 5, 2, 6, 1),
    Sketcher.Constraint("Tangent", 6, 2, 7, 1),
    Sketcher.Constraint("Tangent", 7, 2, 0, 1),
    Sketcher.Constraint("Horizontal", 0),
    Sketcher.Constraint("Vertical", 2),
    Sketcher.Constraint("Horizontal", 4),
    Sketcher.Constraint("Vertical", 6),
    Sketcher.Constraint("Equal", 1, 3),
    Sketcher.Constraint("Equal", 3, 5),
    Sketcher.Constraint("Equal", 5, 7),
    Sketcher.Constraint("Radius", 1, Q("1 mm")),
    Sketcher.Constraint("DistanceX", 0, 2, 0, 1, Q("23 mm")),
    Sketcher.Constraint("DistanceY", 2, 2, 2, 1, Q("18 mm")),
    Sketcher.Constraint("DistanceY", 1, 3, -1, 1, Q("72 mm")),
    Sketcher.Constraint("DistanceX", -1, 1, 1, 3, Q("8.5 mm")),
])
sketch10.setExpression("Constraints[15]", "Params.sketch10_radius")
sketch10.setExpression("Constraints[16]", "Params.sketch10_width")
sketch10.setExpression("Constraints[17]", "Params.sketch10_height")
pad9 = body.newObject("PartDesign::Pad", "Pad008")
pad9.Profile = sketch10
pad9.setExpression("Length", "Params.pad9_length")
pad9.Reversed = True

doc.recompute()
